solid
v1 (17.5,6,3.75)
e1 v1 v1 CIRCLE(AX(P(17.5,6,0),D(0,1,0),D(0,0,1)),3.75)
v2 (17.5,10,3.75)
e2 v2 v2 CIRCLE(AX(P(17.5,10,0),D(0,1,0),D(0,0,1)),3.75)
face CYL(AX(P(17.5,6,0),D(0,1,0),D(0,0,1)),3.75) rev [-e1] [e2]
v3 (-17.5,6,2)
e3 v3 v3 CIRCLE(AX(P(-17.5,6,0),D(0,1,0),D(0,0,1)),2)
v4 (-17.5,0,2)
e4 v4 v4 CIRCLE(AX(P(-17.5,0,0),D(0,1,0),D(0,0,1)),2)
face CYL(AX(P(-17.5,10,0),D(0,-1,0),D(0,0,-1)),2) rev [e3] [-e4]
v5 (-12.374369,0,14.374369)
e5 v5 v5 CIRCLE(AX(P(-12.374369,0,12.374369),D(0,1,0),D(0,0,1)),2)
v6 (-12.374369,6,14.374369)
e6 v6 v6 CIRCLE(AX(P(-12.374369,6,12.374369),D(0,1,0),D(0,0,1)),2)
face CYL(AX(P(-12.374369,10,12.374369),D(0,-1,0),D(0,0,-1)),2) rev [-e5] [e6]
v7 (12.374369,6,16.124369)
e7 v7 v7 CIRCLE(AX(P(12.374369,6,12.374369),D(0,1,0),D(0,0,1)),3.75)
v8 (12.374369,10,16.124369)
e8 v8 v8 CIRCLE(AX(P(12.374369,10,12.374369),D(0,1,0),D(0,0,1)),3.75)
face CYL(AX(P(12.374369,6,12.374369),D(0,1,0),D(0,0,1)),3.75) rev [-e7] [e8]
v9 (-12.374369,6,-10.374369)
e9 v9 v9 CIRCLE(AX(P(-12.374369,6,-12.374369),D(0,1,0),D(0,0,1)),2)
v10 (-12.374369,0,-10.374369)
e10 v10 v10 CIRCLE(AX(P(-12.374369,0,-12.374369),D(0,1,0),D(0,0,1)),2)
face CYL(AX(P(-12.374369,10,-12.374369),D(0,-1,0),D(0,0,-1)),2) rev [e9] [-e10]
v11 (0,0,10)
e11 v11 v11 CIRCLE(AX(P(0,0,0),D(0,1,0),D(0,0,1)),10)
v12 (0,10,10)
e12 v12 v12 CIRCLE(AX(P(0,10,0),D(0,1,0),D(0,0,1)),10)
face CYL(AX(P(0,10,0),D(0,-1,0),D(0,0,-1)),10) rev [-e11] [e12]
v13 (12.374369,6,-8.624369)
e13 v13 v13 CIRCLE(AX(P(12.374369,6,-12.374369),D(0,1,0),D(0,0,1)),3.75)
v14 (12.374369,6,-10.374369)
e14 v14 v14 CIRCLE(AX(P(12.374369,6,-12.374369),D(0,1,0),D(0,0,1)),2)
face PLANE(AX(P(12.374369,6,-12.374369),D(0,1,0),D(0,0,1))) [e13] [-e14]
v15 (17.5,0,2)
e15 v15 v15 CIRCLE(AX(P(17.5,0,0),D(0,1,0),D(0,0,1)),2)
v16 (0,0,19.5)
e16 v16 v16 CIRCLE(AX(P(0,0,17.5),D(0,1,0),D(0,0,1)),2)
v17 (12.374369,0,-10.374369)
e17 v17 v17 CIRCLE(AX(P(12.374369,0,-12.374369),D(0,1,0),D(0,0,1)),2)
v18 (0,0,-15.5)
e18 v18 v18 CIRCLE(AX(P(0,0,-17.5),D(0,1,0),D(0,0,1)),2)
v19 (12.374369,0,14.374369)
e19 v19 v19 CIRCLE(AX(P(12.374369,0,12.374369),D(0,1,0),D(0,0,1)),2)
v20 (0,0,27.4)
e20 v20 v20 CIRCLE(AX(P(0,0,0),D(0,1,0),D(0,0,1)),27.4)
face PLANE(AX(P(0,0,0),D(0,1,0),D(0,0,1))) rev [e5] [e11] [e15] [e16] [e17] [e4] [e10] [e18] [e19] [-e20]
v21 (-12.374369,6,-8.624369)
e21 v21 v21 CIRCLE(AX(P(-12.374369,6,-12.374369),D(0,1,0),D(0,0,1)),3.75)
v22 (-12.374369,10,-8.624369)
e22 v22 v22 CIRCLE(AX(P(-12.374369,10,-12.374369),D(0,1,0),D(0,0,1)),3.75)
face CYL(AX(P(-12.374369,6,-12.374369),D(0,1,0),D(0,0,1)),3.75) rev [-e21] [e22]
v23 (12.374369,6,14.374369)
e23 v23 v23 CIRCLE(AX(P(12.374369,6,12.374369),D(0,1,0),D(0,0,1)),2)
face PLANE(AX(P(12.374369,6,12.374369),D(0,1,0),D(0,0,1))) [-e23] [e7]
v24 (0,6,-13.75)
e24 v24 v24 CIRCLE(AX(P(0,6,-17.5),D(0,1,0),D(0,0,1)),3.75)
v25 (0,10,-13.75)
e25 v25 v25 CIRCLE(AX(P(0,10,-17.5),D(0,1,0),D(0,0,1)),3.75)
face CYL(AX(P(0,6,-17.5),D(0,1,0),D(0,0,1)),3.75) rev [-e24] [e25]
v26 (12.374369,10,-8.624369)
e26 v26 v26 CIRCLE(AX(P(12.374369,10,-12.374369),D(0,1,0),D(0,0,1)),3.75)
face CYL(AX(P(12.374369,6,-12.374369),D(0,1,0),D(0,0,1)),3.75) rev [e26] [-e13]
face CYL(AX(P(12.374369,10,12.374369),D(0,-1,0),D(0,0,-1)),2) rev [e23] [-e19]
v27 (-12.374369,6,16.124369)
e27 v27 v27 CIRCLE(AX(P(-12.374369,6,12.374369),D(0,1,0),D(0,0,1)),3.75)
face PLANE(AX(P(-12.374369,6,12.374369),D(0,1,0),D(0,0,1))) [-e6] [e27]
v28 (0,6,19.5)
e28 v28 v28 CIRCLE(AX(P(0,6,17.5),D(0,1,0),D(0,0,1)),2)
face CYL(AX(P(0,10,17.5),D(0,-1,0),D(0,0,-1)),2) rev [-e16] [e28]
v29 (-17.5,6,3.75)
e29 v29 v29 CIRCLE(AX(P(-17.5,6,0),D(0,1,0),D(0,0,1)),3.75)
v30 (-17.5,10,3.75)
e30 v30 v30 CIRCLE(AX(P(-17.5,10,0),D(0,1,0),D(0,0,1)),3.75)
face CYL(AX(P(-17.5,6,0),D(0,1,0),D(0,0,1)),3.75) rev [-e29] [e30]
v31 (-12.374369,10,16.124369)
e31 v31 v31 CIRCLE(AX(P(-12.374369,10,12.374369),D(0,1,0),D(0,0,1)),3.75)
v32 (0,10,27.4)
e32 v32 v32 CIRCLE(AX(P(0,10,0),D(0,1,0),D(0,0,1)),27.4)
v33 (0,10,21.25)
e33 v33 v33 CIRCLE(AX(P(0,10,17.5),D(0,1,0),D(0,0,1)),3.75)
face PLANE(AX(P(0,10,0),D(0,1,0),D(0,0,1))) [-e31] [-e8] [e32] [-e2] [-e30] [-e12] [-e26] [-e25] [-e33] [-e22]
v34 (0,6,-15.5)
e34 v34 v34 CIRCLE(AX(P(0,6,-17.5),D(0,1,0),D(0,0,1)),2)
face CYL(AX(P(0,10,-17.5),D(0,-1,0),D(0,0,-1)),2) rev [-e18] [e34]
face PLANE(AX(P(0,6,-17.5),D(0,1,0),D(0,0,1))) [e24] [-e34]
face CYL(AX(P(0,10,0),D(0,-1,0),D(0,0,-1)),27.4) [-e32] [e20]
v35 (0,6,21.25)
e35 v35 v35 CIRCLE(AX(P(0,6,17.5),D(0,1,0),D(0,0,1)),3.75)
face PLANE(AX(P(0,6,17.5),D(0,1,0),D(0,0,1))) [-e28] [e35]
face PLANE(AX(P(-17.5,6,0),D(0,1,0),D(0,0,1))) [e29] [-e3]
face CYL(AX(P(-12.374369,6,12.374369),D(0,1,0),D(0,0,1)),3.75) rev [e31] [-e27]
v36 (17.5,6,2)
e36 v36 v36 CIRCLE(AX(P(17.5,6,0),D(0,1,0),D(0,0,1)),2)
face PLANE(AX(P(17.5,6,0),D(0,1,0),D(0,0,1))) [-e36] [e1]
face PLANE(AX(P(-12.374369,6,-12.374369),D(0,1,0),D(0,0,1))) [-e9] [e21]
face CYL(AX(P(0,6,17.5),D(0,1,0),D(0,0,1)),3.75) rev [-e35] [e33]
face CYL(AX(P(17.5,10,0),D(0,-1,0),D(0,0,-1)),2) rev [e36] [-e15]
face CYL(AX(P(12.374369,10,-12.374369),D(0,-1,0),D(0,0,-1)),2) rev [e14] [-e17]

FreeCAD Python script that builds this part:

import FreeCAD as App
import Part
import Sketcher
Q = App.Units.Quantity

doc = App.newDocument("Part")
body = doc.addObject("PartDesign::Body", "Body")

sketch1 = body.newObject("Sketcher::SketchObject", "Sketch")
sketch1.AttachmentSupport = (doc.getObject("XZ_Plane"), [""])
sketch1.MapMode = "FlatFace"
sketch1.addGeometry([
    Part.Circle(App.Vector(0, 0, 0), App.Vector(0, 0, 1), 27.4),
    Part.Circle(App.Vector(-12.4, -12.4, 0), App.Vector(0, 0, 1), 2),
    Part.Circle(App.Vector(0, -17.5, 0), App.Vector(0, 0, 1), 2),
    Part.Circle(App.Vector(-17.5, 0, 0), App.Vector(0, 0, 1), 2),
    Part.Circle(App.Vector(-12.4, 12.4, 0), App.Vector(0, 0, 1), 2),
    Part.Circle(App.Vector(12.4, -12.4, 0), App.Vector(0, 0, 1), 2),
    Part.Circle(App.Vector(17.5, 0, 0), App.Vector(0, 0, 1), 2),
    Part.Circle(App.Vector(0, 0, 0), App.Vector(0, 0, 1), 10),
    Part.Circle(App.Vector(0, 17.5, 0), App.Vector(0, 0, 1), 2),
    Part.Circle(App.Vector(12.4, 12.4, 0), App.Vector(0, 0, 1), 2),
], False)
sketch1.addConstraint([
    Sketcher.Constraint("Coincident", 0, 3, -1, 1),
    Sketcher.Constraint("Coincident", 7, 3, -1, 1),
    Sketcher.Constraint("Equal", 1, 2),
    Sketcher.Constraint("Equal", 2, 3),
    Sketcher.Constraint("Equal", 3, 4),
    Sketcher.Constraint("Equal", 4, 5),
    Sketcher.Constraint("Equal", 5, 6),
    Sketcher.Constraint("Equal", 6, 8),
    Sketcher.Constraint("Equal", 8, 9),
    Sketcher.Constraint("Symmetric", 4, 3, 5, 3, -1, 1),
    Sketcher.Constraint("Symmetric", 3, 3, 6, 3, -1, 1),
    Sketcher.Constraint("Symmetric", 2, 3, 8, 3, -1, 1),
    Sketcher.Constraint("Symmetric", 1, 3, 9, 3, -1, 1),
    Sketcher.Constraint("Symmetric", 1, 3, 5, 3, -2),
    Sketcher.Constraint("PointOnObject", 2, 3, -2),
    Sketcher.Constraint("PointOnObject", 3, 3, -1),
    Sketcher.Constraint("Diameter", 1, Q("4 mm")),
    Sketcher.Constraint("Diameter", 7, Q("20 mm")),
    Sketcher.Constraint("Diameter", 0, Q("54.8 mm")),
    Sketcher.Constraint("DistanceY", 2, 3, -1, 1, Q("17.5 mm")),
    Sketcher.Constraint("DistanceX", 3, 3, -1, 1, Q("17.5 mm")),
    Sketcher.Constraint("DistanceX", 1, 3, -1, 1, Q("12.374369 mm")),
    Sketcher.Constraint("DistanceY", 1, 3, -1, 1, Q("12.374369 mm")),
])
pad1 = body.newObject("PartDesign::Pad", "Pad")
pad1.Profile = sketch1
pad1.Length = 10
pad1.Reversed = True

sketch2 = body.newObject("Sketcher::SketchObject", "Sketch001")
sketch2.AttachmentSupport = (doc.getObject("XZ_Plane"), [""])
sketch2.MapMode = "FlatFace"
sketch2.AttachmentOffset = App.Placement(App.Vector(0, 0, -10), App.Rotation())
sketch2.addGeometry([
    Part.Circle(App.Vector(-12.4, -12.4, 0), App.Vector(0, 0, 1), 3.8),
    Part.Circle(App.Vector(0, -17.5, 0), App.Vector(0, 0, 1), 3.8),
    Part.Circle(App.Vector(12.4, -12.4, 0), App.Vector(0, 0, 1), 3.8),
    Part.Circle(App.Vector(17.5, 0, 0), App.Vector(0, 0, 1), 3.8),
    Part.Circle(App.Vector(12.4, 12.4, 0), App.Vector(0, 0, 1), 3.8),
    Part.Circle(App.Vector(0, 17.5, 0), App.Vector(0, 0, 1), 3.8),
    Part.Circle(App.Vector(-12.4, 12.4, 0), App.Vector(0, 0, 1), 3.8),
    Part.Circle(App.Vector(-17.5, 0, 0), App.Vector(0, 0, 1), 3.8),
], False)
sketch2.addConstraint([
    Sketcher.Constraint("Equal", 0, 1),
    Sketcher.Constraint("Equal", 1, 2),
    Sketcher.Constraint("Equal", 2, 3),
    Sketcher.Constraint("Equal", 3, 4),
    Sketcher.Constraint("Equal", 4, 5),
    Sketcher.Constraint("Equal", 5, 6),
    Sketcher.Constraint("Equal", 6, 7),
    Sketcher.Constraint("Symmetric", 0, 3, 4, 3, -1, 1),
    Sketcher.Constraint("Symmetric", 1, 3, 5, 3, -1, 1),
    Sketcher.Constraint("Symmetric", 2, 3, 6, 3, -1, 1),
    Sketcher.Constraint("Symmetric", 3, 3, 7, 3, -1, 1),
    Sketcher.Constraint("Symmetric", 0, 3, 2, 3, -2),
    Sketcher.Constraint("PointOnObject", 1, 3, -2),
    Sketcher.Constraint("PointOnObject", 3, 3, -1),
    Sketcher.Constraint("Diameter", 0, Q("7.5 mm")),
    Sketcher.Constraint("DistanceY", 1, 3, 5, 3, Q("35 mm")),
    Sketcher.Constraint("DistanceX", -1, 1, 3, 3, Q("17.5 mm")),
    Sketcher.Constraint("DistanceX", 0, 3, -1, 1, Q("12.374369 mm")),
    Sketcher.Constraint("DistanceY", 0, 3, -1, 1, Q("12.374369 mm")),
])
pocket1 = body.newObject("PartDesign::Pocket", "Pocket")
pocket1.Profile = sketch2
pocket1.Length = 4
pocket1.Reversed = True

doc.recompute()
